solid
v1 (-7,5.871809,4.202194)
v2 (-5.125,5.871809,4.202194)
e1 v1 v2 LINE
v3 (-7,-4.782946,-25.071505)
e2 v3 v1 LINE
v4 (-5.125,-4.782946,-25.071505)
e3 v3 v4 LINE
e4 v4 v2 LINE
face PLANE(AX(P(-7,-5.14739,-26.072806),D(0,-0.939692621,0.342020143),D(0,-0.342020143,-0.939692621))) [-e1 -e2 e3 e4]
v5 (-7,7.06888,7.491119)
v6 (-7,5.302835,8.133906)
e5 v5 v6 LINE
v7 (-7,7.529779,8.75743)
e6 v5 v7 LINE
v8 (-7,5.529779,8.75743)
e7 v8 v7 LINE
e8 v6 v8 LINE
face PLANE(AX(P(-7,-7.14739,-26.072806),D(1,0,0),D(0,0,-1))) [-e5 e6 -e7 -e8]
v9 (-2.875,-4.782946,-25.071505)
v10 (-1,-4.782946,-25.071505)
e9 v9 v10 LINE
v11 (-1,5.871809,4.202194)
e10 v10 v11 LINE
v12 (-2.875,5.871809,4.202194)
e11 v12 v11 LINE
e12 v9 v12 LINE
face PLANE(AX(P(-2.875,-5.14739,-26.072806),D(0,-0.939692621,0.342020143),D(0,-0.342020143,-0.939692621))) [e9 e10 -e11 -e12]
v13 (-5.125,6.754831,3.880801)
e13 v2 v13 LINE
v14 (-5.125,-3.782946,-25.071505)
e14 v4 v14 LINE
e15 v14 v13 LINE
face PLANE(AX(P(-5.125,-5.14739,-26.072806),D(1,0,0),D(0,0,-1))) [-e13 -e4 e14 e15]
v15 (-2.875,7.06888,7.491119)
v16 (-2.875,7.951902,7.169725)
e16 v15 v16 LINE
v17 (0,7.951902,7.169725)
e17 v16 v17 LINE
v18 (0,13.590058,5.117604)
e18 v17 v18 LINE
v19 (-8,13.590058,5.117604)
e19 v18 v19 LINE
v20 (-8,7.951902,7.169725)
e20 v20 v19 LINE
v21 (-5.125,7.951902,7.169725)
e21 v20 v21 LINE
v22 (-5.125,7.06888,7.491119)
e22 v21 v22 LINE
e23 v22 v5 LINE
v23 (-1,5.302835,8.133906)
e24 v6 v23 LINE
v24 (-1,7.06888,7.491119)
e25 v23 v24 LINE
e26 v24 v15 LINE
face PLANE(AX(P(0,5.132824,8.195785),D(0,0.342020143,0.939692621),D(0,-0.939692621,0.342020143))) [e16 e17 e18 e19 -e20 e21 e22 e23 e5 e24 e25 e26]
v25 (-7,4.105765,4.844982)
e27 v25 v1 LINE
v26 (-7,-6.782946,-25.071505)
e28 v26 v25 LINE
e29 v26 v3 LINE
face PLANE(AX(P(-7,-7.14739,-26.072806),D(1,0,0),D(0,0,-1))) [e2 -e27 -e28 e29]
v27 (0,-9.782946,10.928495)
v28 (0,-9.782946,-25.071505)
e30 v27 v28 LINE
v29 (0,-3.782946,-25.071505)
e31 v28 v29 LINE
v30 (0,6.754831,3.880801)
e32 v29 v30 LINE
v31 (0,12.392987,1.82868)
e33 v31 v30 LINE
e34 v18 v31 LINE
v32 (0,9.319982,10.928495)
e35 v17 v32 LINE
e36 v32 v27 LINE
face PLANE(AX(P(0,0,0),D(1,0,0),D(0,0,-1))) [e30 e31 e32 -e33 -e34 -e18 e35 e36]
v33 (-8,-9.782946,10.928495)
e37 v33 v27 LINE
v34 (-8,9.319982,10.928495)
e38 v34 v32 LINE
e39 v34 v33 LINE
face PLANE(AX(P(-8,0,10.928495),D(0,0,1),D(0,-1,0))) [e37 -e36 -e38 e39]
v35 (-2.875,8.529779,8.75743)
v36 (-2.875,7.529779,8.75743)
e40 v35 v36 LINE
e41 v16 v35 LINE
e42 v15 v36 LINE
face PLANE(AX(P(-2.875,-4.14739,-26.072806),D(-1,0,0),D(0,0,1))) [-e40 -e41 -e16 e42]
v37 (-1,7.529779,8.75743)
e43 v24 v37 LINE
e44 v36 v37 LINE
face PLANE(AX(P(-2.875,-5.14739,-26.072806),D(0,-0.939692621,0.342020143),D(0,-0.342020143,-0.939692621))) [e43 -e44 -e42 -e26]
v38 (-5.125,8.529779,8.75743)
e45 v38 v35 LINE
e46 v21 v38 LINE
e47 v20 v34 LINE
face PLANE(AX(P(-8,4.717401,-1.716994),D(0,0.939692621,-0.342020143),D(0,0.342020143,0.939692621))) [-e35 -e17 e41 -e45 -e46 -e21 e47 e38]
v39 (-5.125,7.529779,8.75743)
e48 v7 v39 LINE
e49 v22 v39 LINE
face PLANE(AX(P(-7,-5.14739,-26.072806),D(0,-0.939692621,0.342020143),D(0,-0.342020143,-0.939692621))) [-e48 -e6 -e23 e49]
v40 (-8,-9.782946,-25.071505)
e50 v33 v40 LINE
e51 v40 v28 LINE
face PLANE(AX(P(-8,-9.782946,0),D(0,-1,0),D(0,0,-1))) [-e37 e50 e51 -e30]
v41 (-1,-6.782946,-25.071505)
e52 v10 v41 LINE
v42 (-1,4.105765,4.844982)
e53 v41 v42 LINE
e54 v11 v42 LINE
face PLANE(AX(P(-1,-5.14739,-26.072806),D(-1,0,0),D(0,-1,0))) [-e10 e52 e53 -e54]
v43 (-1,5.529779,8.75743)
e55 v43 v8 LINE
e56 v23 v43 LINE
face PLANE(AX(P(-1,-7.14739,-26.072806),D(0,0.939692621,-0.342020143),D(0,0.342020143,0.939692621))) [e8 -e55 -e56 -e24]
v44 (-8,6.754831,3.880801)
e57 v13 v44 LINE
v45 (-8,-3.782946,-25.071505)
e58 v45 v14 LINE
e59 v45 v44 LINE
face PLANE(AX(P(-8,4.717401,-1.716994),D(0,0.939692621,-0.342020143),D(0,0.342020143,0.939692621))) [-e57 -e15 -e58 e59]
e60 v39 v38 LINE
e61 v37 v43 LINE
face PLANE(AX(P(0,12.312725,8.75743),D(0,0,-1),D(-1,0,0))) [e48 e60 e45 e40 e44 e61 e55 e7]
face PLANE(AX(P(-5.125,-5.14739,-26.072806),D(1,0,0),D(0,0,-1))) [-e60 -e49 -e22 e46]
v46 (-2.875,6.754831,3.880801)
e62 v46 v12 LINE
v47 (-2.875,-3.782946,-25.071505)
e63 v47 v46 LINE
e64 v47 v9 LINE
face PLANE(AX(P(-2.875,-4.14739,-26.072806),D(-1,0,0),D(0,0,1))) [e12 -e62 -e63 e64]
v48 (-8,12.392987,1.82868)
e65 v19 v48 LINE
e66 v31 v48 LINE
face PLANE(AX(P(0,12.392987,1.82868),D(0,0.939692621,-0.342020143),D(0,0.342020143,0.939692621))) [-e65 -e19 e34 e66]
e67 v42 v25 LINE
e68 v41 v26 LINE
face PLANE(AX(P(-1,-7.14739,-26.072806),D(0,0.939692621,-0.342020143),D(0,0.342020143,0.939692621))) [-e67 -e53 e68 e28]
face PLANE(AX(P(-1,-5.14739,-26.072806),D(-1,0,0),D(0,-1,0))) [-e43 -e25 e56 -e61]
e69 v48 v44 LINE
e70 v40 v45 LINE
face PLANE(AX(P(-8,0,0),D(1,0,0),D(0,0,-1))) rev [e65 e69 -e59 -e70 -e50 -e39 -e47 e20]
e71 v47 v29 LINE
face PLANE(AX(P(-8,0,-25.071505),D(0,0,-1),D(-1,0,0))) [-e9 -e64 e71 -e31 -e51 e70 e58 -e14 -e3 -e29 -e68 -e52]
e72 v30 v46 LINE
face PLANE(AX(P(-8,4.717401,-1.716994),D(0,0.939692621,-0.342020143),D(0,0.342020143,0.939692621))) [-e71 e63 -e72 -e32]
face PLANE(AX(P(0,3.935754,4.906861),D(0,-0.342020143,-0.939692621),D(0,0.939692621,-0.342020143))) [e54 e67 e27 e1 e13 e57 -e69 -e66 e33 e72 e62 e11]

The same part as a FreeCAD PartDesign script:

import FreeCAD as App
import Part
import Sketcher

V = App.Vector
Q = App.Units.Quantity


def add_polygon(sketch, points):
    """Adds a closed chain of lines whose ends are joined by coincident constraints."""
    first, n = sketch.GeometryCount, len(points)
    for a, b in zip(points, points[1:] + points[:1]):
        sketch.addGeometry(Part.LineSegment(App.Vector(*a, 0), App.Vector(*b, 0)), False)
    for i in range(n):
        sketch.addConstraint(Sketcher.Constraint("Coincident", first + i, 2, first + (i + 1) % n, 1))

doc = App.newDocument("Part")
body = doc.addObject("PartDesign::Body", "Body")

# Sketch on YZ plane
sketch1 = body.newObject("Sketcher::SketchObject", "Sketch")
sketch1.AttachmentSupport = (doc.getObject("YZ_Plane"), [""])
sketch1.MapMode = "FlatFace"
add_polygon(sketch1, [(-10, 11), (-10, -25), (-4, -25), (9, 11)])  # lines 0-3
sketch1.addConstraint([
    Sketcher.Constraint("Vertical", 0),
    Sketcher.Constraint("Horizontal", 1),
    Sketcher.Constraint("Horizontal", 3),
    Sketcher.Constraint("DistanceX", 1, 1, 1, 2, 6.0),
    Sketcher.Constraint("DistanceY", 0, 2, 0, 1, 36.0),
    Sketcher.Constraint("Angle", 2, Q("70 deg")),
    Sketcher.Constraint("DistanceX", 0, 2, -1, 1, 9.782946),
    Sketcher.Constraint("DistanceY", 0, 2, -1, 1, 25.071505),
])
pad1 = body.newObject("PartDesign::Pad", "Pad")
pad1.Profile = sketch1
pad1.Length = 8
pad1.Reversed = True

# Sketch on XY plane
sketch2 = body.newObject("Sketcher::SketchObject", "Sketch001")
sketch2.AttachmentSupport = (doc.getObject("XY_Plane"), [""])
sketch2.MapMode = "FlatFace"
sketch2.AttachmentOffset = App.Placement(V(0, 0, -25.071505), App.Rotation())
add_polygon(sketch2, [(-2.9, -3.8), (-2.9, -4.8), (-1, -4.8), (-1, -6.8), (-7, -6.8), (-7, -4.8), (-5.1, -4.8), (-5.1, -3.8)])  # lines 0-7
sketch2.addConstraint([
    Sketcher.Constraint("Vertical", 0),
    Sketcher.Constraint("Horizontal", 1),
    Sketcher.Constraint("Vertical", 2),
    Sketcher.Constraint("Horizontal", 3),
    Sketcher.Constraint("Vertical", 4),
    Sketcher.Constraint("Horizontal", 5),
    Sketcher.Constraint("Vertical", 6),
    Sketcher.Constraint("Horizontal", 7),
    Sketcher.Constraint("Horizontal", 1, 2, 4, 2),
    Sketcher.Constraint("Equal", 1, 5),
    Sketcher.Constraint("DistanceX", 3, 2, 3, 1, 6.0),
    Sketcher.Constraint("DistanceY", 0, 2, 0, 1, 1.0),
    Sketcher.Constraint("DistanceY", 2, 2, 2, 1, 2.0),
    Sketcher.Constraint("DistanceX", 1, 2, -1, 1, 1.0),
    Sketcher.Constraint("DistanceX", 7, 1, 7, 2, 2.25),
    Sketcher.Constraint("DistanceY", 0, 2, -1, 1, 4.782946),
])

# Sketch on an angled plane
sketch3 = body.newObject("Sketcher::SketchObject", "Sketch002")
sketch3.Placement = App.Placement(V(0, 1.898323, -0.690933), App.Rotation(V(0, 0.342020143, 0.939692621), V(1, 0, 0), V(0, 0.939692621, -0.342020143), "ZXY"))
sketch3.addGeometry(Part.LineSegment(V(-26, -8, 0), V(10, -8, 0)), False)
sketch3.addConstraint([
    Sketcher.Constraint("Horizontal", 0),
    Sketcher.Constraint("DistanceX", 0, 1, 0, 2, 36.0),
    Sketcher.Constraint("DistanceY", 0, 1, -1, 1, 8.0),
    Sketcher.Constraint("DistanceX", 0, 1, -1, 1, 25.945262),
])
doc.recompute()

subtractivepipe = body.newObject("PartDesign::SubtractivePipe", "SubtractivePipe")
subtractivepipe.Profile = sketch2
subtractivepipe.Spine = (sketch3, ["Edge1"])

# Sketch on YZ plane
sketch4 = body.newObject("Sketcher::SketchObject", "Sketch003")
sketch4.AttachmentSupport = (doc.getObject("YZ_Plane"), [""])
sketch4.MapMode = "FlatFace"
sketch4.AttachmentOffset = App.Placement(V(0, 0, -8), App.Rotation())
add_polygon(sketch4, [(3.9, 4.9), (5.1, 8.2), (13.6, 5.1), (12.4, 1.8)])  # lines 0-3
sketch4.addConstraint([
    Sketcher.Constraint("Perpendicular", 0, 1),
    Sketcher.Constraint("Perpendicular", 1, 2),
    Sketcher.Constraint("Perpendicular", 2, 3),
    Sketcher.Constraint("Angle", 0, Q("70 deg")),
    Sketcher.Constraint("Distance", 1, 9.0),
    Sketcher.Constraint("Distance", 0, 3.5),
    Sketcher.Constraint("DistanceY", -1, 1, 2, 2, 1.82868),
    Sketcher.Constraint("DistanceX", -1, 1, 0, 2, 5.132824),
])
pad2 = body.newObject("PartDesign::Pad", "Pad001")
pad2.Profile = sketch4
pad2.Length = 8

doc.recompute()
